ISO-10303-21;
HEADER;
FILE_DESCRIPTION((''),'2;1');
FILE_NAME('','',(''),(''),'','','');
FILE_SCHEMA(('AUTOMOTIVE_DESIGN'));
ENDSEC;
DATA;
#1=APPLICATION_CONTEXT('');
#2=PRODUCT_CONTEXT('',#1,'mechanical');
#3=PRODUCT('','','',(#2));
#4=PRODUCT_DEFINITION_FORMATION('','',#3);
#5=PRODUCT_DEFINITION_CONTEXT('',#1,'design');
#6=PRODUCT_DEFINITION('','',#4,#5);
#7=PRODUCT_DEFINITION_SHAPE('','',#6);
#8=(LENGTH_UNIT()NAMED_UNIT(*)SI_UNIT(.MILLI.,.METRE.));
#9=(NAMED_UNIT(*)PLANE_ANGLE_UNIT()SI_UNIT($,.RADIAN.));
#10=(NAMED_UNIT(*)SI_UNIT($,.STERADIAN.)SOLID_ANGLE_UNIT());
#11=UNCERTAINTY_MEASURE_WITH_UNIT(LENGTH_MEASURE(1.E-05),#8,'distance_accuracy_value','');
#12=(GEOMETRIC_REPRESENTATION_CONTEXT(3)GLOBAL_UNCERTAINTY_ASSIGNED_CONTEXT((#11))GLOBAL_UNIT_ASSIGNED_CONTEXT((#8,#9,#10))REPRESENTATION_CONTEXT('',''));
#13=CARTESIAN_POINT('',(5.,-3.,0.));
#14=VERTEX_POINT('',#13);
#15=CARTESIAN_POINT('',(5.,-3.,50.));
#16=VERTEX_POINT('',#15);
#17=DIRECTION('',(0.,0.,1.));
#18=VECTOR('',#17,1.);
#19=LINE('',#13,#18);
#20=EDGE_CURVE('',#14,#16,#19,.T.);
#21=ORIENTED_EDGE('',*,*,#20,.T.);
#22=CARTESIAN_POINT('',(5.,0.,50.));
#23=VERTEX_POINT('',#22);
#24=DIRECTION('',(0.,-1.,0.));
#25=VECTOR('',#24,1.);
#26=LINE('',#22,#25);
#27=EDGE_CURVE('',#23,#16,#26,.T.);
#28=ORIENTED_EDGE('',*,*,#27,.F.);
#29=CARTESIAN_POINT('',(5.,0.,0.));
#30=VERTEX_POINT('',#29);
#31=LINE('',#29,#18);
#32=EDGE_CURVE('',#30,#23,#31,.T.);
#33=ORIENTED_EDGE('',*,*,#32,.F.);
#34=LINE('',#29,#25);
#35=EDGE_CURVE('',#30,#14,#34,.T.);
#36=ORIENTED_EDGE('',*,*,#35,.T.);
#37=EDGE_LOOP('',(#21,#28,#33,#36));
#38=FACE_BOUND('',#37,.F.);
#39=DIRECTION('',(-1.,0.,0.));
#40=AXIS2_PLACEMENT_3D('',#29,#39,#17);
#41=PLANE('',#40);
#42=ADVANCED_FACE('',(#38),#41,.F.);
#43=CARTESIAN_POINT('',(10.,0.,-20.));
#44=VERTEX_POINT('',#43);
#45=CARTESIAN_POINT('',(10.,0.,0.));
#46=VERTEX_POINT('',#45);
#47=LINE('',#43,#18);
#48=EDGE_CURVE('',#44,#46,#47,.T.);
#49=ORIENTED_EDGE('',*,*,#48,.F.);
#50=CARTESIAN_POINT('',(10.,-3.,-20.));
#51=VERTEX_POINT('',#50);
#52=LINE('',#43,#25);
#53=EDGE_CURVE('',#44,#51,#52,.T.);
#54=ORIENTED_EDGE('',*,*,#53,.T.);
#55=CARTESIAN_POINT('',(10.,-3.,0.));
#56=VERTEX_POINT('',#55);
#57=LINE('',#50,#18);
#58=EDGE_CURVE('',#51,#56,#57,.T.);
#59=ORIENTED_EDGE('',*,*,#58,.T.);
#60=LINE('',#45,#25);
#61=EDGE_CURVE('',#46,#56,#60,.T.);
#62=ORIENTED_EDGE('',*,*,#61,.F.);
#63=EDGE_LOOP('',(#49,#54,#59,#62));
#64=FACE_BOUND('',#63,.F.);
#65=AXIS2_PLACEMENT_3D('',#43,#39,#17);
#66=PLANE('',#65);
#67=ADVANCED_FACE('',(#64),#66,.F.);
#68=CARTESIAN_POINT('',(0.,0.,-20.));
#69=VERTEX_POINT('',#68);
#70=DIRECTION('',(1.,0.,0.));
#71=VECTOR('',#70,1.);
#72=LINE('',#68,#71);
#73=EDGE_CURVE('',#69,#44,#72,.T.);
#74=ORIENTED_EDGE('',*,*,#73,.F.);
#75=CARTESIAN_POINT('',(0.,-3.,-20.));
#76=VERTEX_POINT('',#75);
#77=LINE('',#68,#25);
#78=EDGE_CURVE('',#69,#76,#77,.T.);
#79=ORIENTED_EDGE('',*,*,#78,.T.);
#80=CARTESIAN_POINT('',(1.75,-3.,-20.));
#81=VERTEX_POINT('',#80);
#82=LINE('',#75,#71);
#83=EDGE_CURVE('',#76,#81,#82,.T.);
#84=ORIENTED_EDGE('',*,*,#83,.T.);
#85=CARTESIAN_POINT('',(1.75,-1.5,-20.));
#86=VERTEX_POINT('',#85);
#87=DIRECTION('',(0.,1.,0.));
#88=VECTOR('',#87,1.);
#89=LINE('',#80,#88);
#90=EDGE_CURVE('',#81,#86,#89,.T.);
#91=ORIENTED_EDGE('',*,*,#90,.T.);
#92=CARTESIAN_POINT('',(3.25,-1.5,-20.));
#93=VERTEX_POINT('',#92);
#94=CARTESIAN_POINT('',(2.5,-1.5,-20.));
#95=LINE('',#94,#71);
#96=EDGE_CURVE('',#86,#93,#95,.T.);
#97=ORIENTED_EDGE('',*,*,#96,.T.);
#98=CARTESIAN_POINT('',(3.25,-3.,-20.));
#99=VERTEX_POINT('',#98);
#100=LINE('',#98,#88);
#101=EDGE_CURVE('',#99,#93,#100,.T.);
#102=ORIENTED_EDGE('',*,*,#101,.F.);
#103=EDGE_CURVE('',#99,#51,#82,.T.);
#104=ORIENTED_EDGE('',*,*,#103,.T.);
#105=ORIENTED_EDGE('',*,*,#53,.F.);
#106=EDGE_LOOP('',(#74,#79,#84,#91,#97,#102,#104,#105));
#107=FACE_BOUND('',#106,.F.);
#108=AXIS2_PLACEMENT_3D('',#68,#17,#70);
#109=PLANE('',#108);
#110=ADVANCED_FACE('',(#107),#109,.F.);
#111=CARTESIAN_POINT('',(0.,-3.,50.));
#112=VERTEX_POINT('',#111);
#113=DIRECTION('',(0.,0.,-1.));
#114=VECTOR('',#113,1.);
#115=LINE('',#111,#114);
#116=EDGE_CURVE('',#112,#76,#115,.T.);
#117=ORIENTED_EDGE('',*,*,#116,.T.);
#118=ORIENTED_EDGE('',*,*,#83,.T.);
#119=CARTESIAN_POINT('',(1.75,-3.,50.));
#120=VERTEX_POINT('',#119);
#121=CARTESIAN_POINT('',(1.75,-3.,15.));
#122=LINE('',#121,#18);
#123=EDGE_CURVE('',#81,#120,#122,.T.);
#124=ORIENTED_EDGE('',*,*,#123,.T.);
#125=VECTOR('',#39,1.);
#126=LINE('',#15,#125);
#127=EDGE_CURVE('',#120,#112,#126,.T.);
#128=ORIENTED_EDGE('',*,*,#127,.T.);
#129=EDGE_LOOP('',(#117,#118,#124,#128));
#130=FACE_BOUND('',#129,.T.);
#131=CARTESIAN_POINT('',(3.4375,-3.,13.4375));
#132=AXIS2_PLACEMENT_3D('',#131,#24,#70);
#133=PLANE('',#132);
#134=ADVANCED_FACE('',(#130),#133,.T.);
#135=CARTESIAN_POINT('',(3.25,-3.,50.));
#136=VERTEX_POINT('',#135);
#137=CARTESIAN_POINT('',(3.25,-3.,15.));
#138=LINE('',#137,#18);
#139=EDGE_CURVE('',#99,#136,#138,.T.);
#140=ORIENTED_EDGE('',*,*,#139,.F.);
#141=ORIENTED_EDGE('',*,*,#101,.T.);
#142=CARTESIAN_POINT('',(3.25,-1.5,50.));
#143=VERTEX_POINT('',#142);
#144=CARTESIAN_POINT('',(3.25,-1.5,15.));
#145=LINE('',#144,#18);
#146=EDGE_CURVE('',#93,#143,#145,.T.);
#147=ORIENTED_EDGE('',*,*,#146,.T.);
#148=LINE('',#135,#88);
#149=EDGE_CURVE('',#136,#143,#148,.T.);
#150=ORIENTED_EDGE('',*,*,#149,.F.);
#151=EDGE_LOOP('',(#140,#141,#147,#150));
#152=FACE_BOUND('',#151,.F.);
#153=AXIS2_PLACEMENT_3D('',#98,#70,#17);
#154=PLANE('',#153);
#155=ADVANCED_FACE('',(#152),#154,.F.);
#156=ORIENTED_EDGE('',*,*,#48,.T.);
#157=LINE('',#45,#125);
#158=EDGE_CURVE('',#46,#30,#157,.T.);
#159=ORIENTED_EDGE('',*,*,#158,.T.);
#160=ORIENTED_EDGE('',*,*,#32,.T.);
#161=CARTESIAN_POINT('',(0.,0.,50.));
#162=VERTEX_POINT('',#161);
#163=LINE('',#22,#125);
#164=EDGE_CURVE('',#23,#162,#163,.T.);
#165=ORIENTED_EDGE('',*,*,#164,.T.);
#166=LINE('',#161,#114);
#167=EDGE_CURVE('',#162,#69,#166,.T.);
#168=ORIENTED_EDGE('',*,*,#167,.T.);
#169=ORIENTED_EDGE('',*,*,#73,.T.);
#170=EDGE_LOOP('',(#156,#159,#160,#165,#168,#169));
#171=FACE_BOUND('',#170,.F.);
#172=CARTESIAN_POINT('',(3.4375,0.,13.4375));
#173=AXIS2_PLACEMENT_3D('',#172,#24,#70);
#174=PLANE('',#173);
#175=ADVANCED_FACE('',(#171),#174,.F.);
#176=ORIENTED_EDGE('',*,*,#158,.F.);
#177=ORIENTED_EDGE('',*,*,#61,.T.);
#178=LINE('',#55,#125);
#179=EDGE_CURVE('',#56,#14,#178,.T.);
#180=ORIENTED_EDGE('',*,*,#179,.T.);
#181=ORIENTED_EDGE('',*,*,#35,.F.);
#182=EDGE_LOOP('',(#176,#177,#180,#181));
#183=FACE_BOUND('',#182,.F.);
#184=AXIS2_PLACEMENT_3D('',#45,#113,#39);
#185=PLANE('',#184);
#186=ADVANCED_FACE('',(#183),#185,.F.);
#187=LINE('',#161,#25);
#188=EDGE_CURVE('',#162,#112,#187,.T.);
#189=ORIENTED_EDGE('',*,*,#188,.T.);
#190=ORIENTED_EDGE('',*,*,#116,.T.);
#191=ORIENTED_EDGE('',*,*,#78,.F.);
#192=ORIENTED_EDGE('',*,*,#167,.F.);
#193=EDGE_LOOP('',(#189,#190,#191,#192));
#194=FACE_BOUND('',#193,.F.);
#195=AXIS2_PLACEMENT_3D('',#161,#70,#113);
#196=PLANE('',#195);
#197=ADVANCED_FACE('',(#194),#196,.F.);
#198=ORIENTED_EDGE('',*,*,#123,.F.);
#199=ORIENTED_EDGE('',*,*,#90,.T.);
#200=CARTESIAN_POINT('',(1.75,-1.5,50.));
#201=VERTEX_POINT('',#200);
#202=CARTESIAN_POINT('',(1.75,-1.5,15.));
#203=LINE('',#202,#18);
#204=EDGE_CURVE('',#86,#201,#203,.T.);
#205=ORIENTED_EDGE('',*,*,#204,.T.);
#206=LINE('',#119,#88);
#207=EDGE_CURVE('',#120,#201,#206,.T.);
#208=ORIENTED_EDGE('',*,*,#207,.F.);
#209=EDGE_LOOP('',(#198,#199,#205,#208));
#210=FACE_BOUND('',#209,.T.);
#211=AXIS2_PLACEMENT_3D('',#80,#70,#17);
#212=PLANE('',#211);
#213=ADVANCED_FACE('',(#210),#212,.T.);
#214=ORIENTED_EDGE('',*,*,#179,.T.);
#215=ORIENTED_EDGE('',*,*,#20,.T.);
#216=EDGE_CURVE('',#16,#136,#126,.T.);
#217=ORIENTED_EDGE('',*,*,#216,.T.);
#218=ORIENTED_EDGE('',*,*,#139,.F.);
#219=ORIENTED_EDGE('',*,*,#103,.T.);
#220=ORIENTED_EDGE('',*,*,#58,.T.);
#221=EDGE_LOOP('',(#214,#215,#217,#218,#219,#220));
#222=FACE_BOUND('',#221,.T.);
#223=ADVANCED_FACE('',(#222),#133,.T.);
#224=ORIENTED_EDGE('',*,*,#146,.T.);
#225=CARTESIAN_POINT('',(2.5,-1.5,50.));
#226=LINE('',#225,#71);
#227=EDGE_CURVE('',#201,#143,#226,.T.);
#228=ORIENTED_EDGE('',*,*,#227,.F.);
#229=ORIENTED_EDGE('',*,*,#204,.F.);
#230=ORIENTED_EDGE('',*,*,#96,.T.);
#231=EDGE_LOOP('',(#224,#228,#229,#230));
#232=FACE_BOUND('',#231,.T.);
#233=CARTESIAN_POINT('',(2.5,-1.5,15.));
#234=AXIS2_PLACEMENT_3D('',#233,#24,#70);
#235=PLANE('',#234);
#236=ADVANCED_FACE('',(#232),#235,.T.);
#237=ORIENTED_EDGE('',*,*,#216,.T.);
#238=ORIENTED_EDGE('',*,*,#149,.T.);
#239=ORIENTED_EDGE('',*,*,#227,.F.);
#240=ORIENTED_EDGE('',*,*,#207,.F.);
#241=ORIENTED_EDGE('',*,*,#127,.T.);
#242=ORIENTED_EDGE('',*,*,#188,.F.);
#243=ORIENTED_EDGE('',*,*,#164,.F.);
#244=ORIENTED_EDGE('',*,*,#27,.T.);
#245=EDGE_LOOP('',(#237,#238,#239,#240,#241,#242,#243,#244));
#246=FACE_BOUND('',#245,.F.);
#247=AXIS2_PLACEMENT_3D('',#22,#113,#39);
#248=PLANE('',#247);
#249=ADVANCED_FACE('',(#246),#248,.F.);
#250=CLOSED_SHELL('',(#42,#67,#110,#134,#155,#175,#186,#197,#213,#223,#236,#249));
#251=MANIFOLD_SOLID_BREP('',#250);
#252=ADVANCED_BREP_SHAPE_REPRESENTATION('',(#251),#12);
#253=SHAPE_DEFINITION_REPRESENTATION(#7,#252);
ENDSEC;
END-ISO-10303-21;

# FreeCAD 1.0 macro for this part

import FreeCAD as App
import Part
import Sketcher
Q = App.Units.Quantity


def add_polygon(sketch, points):
    """Adds a closed chain of lines whose ends are joined by coincident constraints."""
    first, n = sketch.GeometryCount, len(points)
    for a, b in zip(points, points[1:] + points[:1]):
        sketch.addGeometry(Part.LineSegment(App.Vector(*a, 0), App.Vector(*b, 0)), False)
    for i in range(n):
        sketch.addConstraint(Sketcher.Constraint("Coincident", first + i, 2, first + (i + 1) % n, 1))

doc = App.newDocument("Part")
params = doc.addObject("Spreadsheet::Sheet", "Params")
for row, (alias, value) in enumerate([
    ("sketch1_width", "5 mm"),
    ("sketch1_height", "50 mm"),
    ("sketch1_height2", "70 mm"),
    ("pad1_length", "3 mm"),
    ("sketch2_height", "70 mm"),
    ("sketch2_width", "1.5 mm"),
    ("pocket1_length", "1.5 mm"),
], start=1):
    params.set(f"A{row}", alias)
    params.set(f"B{row}", "=" + value)
    params.setAlias(f"B{row}", alias)

body = doc.addObject("PartDesign::Body", "Body")

sketch1 = doc.addObject("Sketcher::SketchObject", "Sketch")
body.addObject(sketch1)
sketch1.AttachmentSupport = (doc.XZ_Plane, [""])
sketch1.MapMode = "FlatFace"
add_polygon(sketch1, [(10, 0), (5, 0), (5, 50), (0, 50), (0, -20), (10, -20)])
sketch1.addConstraint(Sketcher.Constraint("Horizontal", 0))
sketch1.addConstraint(Sketcher.Constraint("Vertical", 1))
sketch1.addConstraint(Sketcher.Constraint("Horizontal", 2))
sketch1.addConstraint(Sketcher.Constraint("Vertical", 3))
sketch1.addConstraint(Sketcher.Constraint("Horizontal", 4))
sketch1.addConstraint(Sketcher.Constraint("Vertical", 5))
sketch1.addConstraint(Sketcher.Constraint("PointOnObject", 0, 2, -1))
sketch1.addConstraint(Sketcher.Constraint("PointOnObject", 2, 2, -2))
sketch1.addConstraint(Sketcher.Constraint("Equal", 0, 2))
sketch1.addConstraint(Sketcher.Constraint("DistanceX", 0, 2, 0, 1, Q("5 mm")))
sketch1.addConstraint(Sketcher.Constraint("DistanceY", 1, 1, 1, 2, Q("50 mm")))
sketch1.addConstraint(Sketcher.Constraint("DistanceY", 3, 2, 3, 1, Q("70 mm")))
sketch1.setExpression("Constraints[15]", "Params.sketch1_width")
sketch1.setExpression("Constraints[16]", "Params.sketch1_height")
sketch1.setExpression("Constraints[17]", "Params.sketch1_height2")
pad1 = doc.addObject("PartDesign::Pad", "Pad")
body.addObject(pad1)
pad1.Profile = sketch1
pad1.setExpression("Length", "Params.pad1_length")

sketch2 = doc.addObject("Sketcher::SketchObject", "Sketch001")
body.addObject(sketch2)
sketch2.AttachmentSupport = (doc.XZ_Plane, [""])
sketch2.MapMode = "FlatFace"
sketch2.AttachmentOffset = App.Placement(App.Vector(0, 0, 3), App.Rotation())
add_polygon(sketch2, [(1.8, 50), (1.8, -20), (3.2, -20), (3.2, 50)])
sketch2.addConstraint(Sketcher.Constraint("Vertical", 0))
sketch2.addConstraint(Sketcher.Constraint("Horizontal", 1))
sketch2.addConstraint(Sketcher.Constraint("Vertical", 2))
sketch2.addConstraint(Sketcher.Constraint("Horizontal", 3))
sketch2.addConstraint(Sketcher.Constraint("DistanceY", 0, 2, 0, 1, Q("70 mm")))
sketch2.addConstraint(Sketcher.Constraint("DistanceX", 1, 1, 1, 2, Q("1.5 mm")))
sketch2.addConstraint(Sketcher.Constraint("DistanceY", 0, 2, -1, 1, Q("20 mm")))
sketch2.addConstraint(Sketcher.Constraint("DistanceX", -1, 1, 0, 2, Q("1.75 mm")))
sketch2.setExpression("Constraints[8]", "Params.sketch2_height")
sketch2.setExpression("Constraints[9]", "Params.sketch2_width")
pocket1 = doc.addObject("PartDesign::Pocket", "Pocket")
body.addObject(pocket1)
pocket1.Profile = sketch2
pocket1.setExpression("Length", "Params.pocket1_length")

doc.recompute()
